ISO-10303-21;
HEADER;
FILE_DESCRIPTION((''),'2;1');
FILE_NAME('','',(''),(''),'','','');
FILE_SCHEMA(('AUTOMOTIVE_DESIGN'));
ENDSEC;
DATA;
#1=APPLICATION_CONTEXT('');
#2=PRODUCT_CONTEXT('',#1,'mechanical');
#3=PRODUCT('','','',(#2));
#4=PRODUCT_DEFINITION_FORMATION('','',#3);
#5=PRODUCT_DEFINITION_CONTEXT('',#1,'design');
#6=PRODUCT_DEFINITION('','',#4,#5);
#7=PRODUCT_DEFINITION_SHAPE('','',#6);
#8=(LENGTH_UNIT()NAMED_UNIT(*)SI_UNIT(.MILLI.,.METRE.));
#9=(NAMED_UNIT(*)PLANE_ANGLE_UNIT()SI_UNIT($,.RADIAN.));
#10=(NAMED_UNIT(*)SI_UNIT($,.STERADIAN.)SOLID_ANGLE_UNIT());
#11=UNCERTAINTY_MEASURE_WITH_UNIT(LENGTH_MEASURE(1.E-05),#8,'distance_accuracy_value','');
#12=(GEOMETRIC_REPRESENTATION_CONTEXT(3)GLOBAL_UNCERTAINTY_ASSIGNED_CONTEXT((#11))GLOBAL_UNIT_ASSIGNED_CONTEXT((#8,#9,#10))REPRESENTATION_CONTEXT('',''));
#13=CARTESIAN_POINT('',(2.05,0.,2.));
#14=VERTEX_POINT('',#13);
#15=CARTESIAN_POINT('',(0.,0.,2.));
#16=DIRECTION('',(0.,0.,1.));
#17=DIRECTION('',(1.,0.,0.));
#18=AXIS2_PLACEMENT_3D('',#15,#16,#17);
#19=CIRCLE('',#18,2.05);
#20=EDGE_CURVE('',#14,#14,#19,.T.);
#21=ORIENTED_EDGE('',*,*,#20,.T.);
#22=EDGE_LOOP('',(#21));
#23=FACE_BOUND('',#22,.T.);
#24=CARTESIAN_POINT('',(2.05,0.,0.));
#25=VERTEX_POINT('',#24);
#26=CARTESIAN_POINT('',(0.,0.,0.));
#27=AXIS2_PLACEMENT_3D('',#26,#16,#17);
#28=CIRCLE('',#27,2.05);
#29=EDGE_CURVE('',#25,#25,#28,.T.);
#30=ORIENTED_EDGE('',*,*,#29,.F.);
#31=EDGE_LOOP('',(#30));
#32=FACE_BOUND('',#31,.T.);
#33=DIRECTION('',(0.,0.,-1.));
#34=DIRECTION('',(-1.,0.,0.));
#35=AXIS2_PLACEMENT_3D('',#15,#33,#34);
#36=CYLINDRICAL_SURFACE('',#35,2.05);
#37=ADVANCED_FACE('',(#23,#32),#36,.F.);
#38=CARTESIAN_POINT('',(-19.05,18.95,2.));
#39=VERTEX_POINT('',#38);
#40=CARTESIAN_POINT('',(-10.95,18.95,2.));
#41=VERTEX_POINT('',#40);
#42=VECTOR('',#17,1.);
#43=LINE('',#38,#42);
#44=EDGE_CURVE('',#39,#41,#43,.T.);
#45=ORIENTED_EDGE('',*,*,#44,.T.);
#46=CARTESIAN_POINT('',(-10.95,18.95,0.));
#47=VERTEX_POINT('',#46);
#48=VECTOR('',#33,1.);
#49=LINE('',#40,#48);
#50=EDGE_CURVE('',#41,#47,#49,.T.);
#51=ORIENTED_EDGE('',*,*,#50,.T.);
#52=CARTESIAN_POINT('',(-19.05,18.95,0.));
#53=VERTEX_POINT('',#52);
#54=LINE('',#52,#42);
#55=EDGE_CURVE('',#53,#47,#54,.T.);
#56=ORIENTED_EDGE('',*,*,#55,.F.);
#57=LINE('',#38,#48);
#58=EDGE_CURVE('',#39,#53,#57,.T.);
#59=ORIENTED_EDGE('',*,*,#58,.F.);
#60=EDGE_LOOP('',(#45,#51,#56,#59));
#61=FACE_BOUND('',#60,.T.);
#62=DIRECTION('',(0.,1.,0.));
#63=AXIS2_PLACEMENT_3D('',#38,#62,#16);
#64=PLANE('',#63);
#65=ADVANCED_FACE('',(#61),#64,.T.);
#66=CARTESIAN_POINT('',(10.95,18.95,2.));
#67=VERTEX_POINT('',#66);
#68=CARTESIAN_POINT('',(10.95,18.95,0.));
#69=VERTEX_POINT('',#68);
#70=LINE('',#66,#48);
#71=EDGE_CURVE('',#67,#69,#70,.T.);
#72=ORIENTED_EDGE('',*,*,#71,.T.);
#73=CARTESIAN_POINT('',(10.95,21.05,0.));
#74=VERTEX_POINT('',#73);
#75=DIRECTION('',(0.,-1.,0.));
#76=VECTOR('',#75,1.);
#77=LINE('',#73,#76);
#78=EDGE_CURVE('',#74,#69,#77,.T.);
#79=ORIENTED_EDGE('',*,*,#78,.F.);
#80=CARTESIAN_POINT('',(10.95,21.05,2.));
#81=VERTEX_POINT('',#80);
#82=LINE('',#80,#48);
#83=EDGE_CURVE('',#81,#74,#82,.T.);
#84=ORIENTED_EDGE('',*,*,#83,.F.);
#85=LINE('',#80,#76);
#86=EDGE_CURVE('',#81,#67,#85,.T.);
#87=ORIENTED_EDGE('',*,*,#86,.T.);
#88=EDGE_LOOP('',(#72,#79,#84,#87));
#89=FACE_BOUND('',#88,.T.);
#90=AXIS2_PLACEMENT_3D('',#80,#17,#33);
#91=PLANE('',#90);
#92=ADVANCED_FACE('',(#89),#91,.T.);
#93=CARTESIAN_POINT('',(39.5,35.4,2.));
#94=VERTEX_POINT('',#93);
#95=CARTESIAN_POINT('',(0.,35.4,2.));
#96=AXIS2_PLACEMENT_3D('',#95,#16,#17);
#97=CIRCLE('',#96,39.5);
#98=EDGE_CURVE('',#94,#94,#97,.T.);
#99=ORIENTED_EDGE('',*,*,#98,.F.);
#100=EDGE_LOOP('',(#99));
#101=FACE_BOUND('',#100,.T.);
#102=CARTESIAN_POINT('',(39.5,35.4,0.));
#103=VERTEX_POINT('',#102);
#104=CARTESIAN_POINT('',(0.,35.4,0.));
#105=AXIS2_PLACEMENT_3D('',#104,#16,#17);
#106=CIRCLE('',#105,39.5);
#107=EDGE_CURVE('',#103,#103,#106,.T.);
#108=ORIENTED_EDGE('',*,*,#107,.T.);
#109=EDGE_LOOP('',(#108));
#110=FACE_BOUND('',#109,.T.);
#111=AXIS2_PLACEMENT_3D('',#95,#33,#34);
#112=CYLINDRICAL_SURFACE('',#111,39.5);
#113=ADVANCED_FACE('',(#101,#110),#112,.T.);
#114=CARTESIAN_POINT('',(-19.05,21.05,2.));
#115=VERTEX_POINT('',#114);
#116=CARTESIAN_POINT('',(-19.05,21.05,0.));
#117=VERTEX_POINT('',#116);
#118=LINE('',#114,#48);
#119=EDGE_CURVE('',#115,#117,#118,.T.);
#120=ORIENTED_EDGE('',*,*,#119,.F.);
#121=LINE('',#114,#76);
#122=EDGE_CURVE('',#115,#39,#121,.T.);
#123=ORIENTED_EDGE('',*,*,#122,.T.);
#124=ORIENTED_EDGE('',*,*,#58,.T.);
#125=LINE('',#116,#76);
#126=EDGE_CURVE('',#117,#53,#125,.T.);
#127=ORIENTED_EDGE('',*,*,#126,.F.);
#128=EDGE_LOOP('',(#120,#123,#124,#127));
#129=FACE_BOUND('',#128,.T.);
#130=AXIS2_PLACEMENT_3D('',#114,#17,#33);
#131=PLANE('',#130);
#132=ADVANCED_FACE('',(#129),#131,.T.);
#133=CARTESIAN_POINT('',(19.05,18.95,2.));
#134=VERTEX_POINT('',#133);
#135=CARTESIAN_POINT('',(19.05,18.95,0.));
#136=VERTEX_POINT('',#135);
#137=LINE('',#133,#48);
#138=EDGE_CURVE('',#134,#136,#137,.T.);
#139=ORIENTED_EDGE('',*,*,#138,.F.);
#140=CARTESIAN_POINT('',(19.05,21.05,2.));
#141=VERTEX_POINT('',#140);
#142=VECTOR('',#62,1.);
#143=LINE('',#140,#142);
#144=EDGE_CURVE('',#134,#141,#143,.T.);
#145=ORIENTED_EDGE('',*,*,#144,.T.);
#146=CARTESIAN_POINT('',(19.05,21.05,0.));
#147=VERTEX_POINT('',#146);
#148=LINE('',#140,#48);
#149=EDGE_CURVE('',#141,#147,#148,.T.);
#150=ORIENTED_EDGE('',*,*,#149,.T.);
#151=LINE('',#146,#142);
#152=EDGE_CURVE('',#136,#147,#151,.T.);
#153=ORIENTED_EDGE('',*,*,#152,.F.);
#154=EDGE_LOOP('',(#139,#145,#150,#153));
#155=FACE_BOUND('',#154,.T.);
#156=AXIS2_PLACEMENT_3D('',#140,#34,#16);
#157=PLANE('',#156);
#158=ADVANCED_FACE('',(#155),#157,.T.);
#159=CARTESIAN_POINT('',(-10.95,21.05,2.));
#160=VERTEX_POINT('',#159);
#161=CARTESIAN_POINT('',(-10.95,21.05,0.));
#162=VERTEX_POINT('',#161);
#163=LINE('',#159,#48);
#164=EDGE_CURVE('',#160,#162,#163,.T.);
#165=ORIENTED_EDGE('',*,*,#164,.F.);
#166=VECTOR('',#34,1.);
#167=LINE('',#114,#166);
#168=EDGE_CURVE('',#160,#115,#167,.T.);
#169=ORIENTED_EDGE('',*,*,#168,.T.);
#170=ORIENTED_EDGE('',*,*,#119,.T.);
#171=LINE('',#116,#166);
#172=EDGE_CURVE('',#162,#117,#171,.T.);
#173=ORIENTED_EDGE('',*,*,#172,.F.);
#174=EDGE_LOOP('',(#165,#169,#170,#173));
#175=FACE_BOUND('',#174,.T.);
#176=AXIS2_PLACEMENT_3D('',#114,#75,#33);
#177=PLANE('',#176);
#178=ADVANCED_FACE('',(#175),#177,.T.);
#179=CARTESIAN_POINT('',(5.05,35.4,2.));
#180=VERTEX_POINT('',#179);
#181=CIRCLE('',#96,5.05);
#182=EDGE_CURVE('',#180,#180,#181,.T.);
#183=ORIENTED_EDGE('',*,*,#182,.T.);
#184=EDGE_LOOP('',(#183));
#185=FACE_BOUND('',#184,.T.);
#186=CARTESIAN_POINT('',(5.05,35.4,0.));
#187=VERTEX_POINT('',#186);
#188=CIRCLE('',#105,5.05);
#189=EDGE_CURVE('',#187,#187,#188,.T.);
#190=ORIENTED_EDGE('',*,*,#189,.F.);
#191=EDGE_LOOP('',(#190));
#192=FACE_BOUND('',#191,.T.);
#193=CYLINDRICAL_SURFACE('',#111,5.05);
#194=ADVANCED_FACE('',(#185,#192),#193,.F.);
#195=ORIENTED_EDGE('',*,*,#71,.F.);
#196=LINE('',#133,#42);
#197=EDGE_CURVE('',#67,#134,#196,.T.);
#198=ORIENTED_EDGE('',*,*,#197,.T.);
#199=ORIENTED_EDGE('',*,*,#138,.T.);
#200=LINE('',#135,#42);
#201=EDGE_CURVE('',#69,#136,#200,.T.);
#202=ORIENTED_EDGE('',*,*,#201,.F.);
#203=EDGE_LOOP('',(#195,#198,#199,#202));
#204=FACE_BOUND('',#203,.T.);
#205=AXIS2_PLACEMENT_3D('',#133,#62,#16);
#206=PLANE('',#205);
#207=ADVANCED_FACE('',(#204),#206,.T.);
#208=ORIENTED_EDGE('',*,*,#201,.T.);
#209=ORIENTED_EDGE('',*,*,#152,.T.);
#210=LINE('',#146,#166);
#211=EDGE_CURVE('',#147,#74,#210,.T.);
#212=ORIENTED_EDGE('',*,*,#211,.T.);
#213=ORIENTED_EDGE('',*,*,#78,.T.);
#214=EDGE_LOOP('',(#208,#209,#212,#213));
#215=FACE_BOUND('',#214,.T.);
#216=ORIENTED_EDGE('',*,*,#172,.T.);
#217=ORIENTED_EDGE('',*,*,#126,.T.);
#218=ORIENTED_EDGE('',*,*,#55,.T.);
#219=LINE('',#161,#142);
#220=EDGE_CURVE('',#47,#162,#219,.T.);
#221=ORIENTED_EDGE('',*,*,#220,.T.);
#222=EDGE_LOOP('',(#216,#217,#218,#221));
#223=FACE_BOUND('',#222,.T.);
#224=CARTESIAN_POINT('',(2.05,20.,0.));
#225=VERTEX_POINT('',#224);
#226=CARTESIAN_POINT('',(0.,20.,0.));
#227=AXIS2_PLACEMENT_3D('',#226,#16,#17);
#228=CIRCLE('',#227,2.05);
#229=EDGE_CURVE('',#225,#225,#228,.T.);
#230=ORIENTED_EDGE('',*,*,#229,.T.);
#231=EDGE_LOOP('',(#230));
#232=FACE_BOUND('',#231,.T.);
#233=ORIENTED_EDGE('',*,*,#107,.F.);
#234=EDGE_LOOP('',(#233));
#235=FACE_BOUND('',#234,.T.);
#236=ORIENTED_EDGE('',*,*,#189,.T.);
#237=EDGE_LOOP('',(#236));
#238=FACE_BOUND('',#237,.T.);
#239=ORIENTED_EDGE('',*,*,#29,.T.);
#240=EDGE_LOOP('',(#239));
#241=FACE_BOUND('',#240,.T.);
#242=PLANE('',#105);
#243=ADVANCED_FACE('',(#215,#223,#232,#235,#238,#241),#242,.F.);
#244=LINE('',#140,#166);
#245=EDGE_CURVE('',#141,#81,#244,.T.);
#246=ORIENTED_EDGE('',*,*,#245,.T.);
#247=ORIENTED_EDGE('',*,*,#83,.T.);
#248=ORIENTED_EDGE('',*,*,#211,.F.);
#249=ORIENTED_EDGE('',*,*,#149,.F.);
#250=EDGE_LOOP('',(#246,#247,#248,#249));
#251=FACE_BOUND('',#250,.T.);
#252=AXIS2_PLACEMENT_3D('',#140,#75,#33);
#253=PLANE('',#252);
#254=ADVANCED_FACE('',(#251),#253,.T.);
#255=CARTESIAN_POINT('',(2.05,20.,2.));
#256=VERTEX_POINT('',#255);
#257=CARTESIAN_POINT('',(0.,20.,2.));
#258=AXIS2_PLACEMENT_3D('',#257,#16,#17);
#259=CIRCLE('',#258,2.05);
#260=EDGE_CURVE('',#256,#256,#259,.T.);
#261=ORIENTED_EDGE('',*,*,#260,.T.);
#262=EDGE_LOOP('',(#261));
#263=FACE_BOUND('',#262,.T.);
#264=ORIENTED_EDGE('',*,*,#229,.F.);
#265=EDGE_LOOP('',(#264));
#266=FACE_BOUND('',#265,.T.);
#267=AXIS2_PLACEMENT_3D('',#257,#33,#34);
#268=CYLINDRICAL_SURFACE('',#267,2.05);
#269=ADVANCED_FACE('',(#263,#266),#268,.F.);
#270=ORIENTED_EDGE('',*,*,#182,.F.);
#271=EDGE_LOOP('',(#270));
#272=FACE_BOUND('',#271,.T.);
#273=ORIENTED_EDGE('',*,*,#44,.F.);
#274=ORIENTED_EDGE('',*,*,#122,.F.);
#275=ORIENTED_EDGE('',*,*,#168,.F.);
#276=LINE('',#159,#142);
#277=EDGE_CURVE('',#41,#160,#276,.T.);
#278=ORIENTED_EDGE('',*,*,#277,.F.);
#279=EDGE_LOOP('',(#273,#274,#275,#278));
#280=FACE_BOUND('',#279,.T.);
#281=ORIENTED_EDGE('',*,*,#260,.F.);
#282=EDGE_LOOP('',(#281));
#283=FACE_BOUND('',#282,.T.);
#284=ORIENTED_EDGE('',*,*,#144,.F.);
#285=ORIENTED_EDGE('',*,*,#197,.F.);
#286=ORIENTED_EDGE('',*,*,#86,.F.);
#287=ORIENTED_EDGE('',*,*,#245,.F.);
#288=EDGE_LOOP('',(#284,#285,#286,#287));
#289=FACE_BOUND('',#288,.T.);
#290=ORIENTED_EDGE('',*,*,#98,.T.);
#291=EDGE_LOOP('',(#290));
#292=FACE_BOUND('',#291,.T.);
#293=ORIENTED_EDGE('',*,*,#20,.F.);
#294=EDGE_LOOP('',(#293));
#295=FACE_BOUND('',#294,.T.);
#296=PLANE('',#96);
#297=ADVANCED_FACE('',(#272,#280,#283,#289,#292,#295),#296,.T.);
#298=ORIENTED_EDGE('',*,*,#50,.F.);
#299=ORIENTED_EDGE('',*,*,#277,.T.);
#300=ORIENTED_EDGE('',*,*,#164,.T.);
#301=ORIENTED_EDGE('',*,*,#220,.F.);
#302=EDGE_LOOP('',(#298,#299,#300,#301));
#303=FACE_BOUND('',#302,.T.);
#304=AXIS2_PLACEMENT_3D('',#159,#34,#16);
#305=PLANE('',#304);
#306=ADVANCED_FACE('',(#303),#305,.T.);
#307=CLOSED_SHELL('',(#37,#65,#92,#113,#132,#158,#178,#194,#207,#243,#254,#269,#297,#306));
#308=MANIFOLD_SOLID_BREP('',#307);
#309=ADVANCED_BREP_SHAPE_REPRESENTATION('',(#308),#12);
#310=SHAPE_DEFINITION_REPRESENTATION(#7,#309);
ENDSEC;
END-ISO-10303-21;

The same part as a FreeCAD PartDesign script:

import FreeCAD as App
import Part
import Sketcher

V = App.Vector

doc = App.newDocument("Part")
body = doc.addObject("PartDesign::Body", "Body")

# Sketch on XY plane
sketch1 = doc.addObject("Sketcher::SketchObject", "Sketch")
body.addObject(sketch1)
sketch1.AttachmentSupport = (doc.XY_Plane, [""])
sketch1.MapMode = "FlatFace"
sketch1.addGeometry(Part.Circle(V(0, 35.4, 0), V(0, 0, 1), 39.5), False)
sketch1.addGeometry(Part.Circle(V(0, 0, 0), V(0, 0, 1), 2), False)
sketch1.addGeometry(Part.LineSegment(V(-10.9, 18.9, 0), V(-19.1, 18.9, 0)), False)
sketch1.addGeometry(Part.LineSegment(V(-19.1, 18.9, 0), V(-19.1, 21.1, 0)), False)
sketch1.addGeometry(Part.LineSegment(V(-19.1, 21.1, 0), V(-10.9, 21.1, 0)), False)
sketch1.addGeometry(Part.LineSegment(V(-10.9, 21.1, 0), V(-10.9, 18.9, 0)), False)
sketch1.addGeometry(Part.Circle(V(0, 20, 0), V(0, 0, 1), 2), False)
sketch1.addGeometry(Part.LineSegment(V(19.1, 18.9, 0), V(10.9, 18.9, 0)), False)
sketch1.addGeometry(Part.LineSegment(V(10.9, 18.9, 0), V(10.9, 21.1, 0)), False)
sketch1.addGeometry(Part.LineSegment(V(10.9, 21.1, 0), V(19.1, 21.1, 0)), False)
sketch1.addGeometry(Part.LineSegment(V(19.1, 21.1, 0), V(19.1, 18.9, 0)), False)
sketch1.addGeometry(Part.Circle(V(0, 35.4, 0), V(0, 0, 1), 5), False)
sketch1.addConstraint(Sketcher.Constraint("Coincident", 2, 2, 3, 1))
sketch1.addConstraint(Sketcher.Constraint("Coincident", 3, 2, 4, 1))
sketch1.addConstraint(Sketcher.Constraint("Coincident", 4, 2, 5, 1))
sketch1.addConstraint(Sketcher.Constraint("Coincident", 5, 2, 2, 1))
sketch1.addConstraint(Sketcher.Constraint("Coincident", 7, 2, 8, 1))
sketch1.addConstraint(Sketcher.Constraint("Coincident", 8, 2, 9, 1))
sketch1.addConstraint(Sketcher.Constraint("Coincident", 9, 2, 10, 1))
sketch1.addConstraint(Sketcher.Constraint("Coincident", 10, 2, 7, 1))
sketch1.addConstraint(Sketcher.Constraint("Horizontal", 2))
sketch1.addConstraint(Sketcher.Constraint("Vertical", 3))
sketch1.addConstraint(Sketcher.Constraint("Horizontal", 4))
sketch1.addConstraint(Sketcher.Constraint("Vertical", 5))
sketch1.addConstraint(Sketcher.Constraint("Horizontal", 7))
sketch1.addConstraint(Sketcher.Constraint("Vertical", 8))
sketch1.addConstraint(Sketcher.Constraint("Horizontal", 9))
sketch1.addConstraint(Sketcher.Constraint("Vertical", 10))
sketch1.addConstraint(Sketcher.Constraint("Coincident", 1, 3, -1, 1))
sketch1.addConstraint(Sketcher.Constraint("Coincident", 11, 3, 0, 3))
sketch1.addConstraint(Sketcher.Constraint("Equal", 1, 6))
sketch1.addConstraint(Sketcher.Constraint("Symmetric", 5, 2, 7, 2, -2))
sketch1.addConstraint(Sketcher.Constraint("Symmetric", 3, 2, 9, 2, -2))
sketch1.addConstraint(Sketcher.Constraint("PointOnObject", 0, 3, -2))
sketch1.addConstraint(Sketcher.Constraint("PointOnObject", 6, 3, -2))
sketch1.addConstraint(Sketcher.Constraint("Diameter", 0, 79.0))
sketch1.addConstraint(Sketcher.Constraint("Diameter", 1, 4.1))
sketch1.addConstraint(Sketcher.Constraint("Diameter", 11, 10.1))
sketch1.addConstraint(Sketcher.Constraint("DistanceX", 2, 2, 2, 1, 8.1))
sketch1.addConstraint(Sketcher.Constraint("DistanceY", 3, 1, 3, 2, 2.1))
sketch1.addConstraint(Sketcher.Constraint("DistanceY", -1, 1, 6, 3, 20.0))
sketch1.addConstraint(Sketcher.Constraint("DistanceY", -1, 1, 0, 3, 35.4))
sketch1.addConstraint(Sketcher.Constraint("DistanceX", 5, 2, 7, 2, 21.9))
sketch1.addConstraint(Sketcher.Constraint("DistanceY", -1, 1, 2, 2, 18.95))
pad1 = doc.addObject("PartDesign::Pad", "Pad")
body.addObject(pad1)
pad1.Profile = sketch1
pad1.Length = 2

doc.recompute()
